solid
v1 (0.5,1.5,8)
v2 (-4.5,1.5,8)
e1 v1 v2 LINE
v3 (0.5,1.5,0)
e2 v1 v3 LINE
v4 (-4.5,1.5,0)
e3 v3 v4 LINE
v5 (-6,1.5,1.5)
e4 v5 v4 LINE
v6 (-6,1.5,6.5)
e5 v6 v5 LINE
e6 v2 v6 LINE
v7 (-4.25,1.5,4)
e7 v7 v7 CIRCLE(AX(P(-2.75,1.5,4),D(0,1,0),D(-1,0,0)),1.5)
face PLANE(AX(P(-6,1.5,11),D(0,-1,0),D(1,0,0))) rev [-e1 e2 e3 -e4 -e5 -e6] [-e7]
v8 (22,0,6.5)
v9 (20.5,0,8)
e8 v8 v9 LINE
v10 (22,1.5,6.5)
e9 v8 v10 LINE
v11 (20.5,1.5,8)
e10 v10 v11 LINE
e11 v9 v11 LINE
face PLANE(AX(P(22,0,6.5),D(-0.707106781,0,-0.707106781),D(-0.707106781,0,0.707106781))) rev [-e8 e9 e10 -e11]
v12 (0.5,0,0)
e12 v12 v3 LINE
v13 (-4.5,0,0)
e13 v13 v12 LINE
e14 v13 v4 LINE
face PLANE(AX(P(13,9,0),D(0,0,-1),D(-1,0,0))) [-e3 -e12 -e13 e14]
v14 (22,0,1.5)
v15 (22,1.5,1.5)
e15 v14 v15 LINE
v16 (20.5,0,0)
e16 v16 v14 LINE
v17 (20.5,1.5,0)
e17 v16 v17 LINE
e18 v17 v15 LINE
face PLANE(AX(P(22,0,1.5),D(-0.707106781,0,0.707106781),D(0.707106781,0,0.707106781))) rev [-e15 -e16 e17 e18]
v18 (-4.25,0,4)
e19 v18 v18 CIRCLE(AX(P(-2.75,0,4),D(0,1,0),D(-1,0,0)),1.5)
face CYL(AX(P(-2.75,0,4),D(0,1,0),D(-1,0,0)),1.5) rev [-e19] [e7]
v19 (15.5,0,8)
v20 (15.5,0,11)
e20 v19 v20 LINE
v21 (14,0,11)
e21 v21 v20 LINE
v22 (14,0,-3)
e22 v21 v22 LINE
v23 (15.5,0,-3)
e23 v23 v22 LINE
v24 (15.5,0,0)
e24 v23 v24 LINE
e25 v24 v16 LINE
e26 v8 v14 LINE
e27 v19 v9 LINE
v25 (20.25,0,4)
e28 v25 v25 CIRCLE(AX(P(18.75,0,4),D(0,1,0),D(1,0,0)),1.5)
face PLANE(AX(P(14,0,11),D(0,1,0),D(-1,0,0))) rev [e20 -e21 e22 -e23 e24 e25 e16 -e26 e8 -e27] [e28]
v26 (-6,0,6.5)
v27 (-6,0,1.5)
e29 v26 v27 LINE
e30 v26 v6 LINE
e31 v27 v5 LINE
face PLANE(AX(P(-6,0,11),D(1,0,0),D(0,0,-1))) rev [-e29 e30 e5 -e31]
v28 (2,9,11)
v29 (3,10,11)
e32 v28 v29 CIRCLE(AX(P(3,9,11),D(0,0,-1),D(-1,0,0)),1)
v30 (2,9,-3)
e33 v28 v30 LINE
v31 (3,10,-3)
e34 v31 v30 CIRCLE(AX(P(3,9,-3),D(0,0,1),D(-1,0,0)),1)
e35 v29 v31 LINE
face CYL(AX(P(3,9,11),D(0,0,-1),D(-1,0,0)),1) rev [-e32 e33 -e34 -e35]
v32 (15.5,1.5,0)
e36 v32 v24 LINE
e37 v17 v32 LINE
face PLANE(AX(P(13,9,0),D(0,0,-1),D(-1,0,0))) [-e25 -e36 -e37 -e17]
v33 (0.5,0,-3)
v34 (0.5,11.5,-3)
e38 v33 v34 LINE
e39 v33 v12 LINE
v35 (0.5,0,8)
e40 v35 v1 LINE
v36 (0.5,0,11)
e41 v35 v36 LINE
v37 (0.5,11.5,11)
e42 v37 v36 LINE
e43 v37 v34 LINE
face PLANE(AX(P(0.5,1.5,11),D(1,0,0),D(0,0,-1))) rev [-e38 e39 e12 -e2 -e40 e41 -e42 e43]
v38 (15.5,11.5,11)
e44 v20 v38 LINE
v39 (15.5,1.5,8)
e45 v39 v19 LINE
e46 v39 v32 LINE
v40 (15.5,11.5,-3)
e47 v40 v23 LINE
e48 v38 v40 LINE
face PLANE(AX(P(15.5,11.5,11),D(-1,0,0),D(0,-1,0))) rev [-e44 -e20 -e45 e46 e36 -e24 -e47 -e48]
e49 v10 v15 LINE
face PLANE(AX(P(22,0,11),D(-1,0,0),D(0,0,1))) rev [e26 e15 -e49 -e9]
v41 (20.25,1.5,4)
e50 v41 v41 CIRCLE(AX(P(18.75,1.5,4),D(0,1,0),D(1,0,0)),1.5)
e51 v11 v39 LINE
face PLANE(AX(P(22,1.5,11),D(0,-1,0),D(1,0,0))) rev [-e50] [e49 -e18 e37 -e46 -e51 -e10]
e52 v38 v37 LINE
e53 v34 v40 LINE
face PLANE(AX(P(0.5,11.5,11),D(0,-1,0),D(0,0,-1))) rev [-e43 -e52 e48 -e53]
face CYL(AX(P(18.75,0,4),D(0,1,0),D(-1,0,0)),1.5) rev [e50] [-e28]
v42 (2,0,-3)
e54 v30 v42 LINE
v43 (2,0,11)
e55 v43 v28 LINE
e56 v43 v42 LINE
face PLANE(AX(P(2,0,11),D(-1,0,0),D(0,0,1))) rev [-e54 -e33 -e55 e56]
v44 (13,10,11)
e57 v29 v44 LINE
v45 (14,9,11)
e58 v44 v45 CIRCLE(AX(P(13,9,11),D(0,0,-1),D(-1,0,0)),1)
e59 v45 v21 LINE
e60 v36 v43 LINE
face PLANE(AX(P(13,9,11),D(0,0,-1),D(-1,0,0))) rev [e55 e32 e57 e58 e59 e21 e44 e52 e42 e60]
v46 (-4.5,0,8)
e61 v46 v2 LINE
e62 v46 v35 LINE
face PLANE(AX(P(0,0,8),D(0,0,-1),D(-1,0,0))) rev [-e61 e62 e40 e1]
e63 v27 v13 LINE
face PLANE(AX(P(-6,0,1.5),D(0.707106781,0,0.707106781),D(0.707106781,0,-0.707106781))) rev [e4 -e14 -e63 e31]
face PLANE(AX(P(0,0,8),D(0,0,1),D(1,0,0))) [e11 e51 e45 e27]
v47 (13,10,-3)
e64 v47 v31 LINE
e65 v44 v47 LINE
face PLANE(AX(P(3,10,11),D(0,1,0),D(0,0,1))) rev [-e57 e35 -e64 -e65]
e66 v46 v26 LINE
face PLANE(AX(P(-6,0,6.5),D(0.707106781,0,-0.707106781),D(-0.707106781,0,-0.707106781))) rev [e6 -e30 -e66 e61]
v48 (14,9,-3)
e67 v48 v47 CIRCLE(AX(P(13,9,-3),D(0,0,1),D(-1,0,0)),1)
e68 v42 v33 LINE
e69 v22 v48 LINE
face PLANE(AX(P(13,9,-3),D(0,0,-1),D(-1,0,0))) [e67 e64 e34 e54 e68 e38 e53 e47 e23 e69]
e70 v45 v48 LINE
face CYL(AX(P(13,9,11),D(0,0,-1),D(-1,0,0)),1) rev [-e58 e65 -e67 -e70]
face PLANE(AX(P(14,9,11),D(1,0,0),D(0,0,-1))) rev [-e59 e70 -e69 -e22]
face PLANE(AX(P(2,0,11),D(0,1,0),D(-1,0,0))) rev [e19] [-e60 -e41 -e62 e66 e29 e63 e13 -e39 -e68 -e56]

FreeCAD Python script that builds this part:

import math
import FreeCAD as App
import Part
import Sketcher
from FreeCAD import Vector
Q = App.Units.Quantity

doc = App.newDocument("Part")
body = doc.addObject("PartDesign::Body", "Body")

sketch1 = body.newObject("Sketcher::SketchObject", "Sketch")
sketch1.AttachmentSupport = (doc.getObject("XY_Plane"), [""])
sketch1.MapMode = "FlatFace"
sketch1.addGeometry(Part.LineSegment(Vector(0.5, 11.5, 0), Vector(0.5, 1.5, 0)), False)
sketch1.addGeometry(Part.LineSegment(Vector(0.5, 1.5, 0), Vector(-6, 1.5, 0)), False)
sketch1.addGeometry(Part.LineSegment(Vector(-6, 1.5, 0), Vector(-6, 0, 0)), False)
sketch1.addGeometry(Part.LineSegment(Vector(-6, 0, 0), Vector(2, 0, 0)), False)
sketch1.addGeometry(Part.LineSegment(Vector(2, 0, 0), Vector(2, 9, 0)), False)
sketch1.addGeometry(Part.ArcOfCircle(Part.Circle(Vector(3, 9, 0), Vector(0, 0, 1), 1), math.radians(90), math.radians(180)), False)
sketch1.addGeometry(Part.LineSegment(Vector(3, 10, 0), Vector(13, 10, 0)), False)
sketch1.addGeometry(Part.ArcOfCircle(Part.Circle(Vector(13, 9, 0), Vector(0, 0, 1), 1), math.radians(0), math.radians(90)), False)
sketch1.addGeometry(Part.LineSegment(Vector(14, 9, 0), Vector(14, 0, 0)), False)
sketch1.addGeometry(Part.LineSegment(Vector(14, 0, 0), Vector(22, 0, 0)), False)
sketch1.addGeometry(Part.LineSegment(Vector(22, 0, 0), Vector(22, 1.5, 0)), False)
sketch1.addGeometry(Part.LineSegment(Vector(22, 1.5, 0), Vector(15.5, 1.5, 0)), False)
sketch1.addGeometry(Part.LineSegment(Vector(15.5, 1.5, 0), Vector(15.5, 11.5, 0)), False)
sketch1.addGeometry(Part.LineSegment(Vector(15.5, 11.5, 0), Vector(0.5, 11.5, 0)), False)
sketch1.addConstraint(Sketcher.Constraint("Coincident", 0, 2, 1, 1))
sketch1.addConstraint(Sketcher.Constraint("Coincident", 1, 2, 2, 1))
sketch1.addConstraint(Sketcher.Constraint("Coincident", 2, 2, 3, 1))
sketch1.addConstraint(Sketcher.Constraint("Coincident", 3, 2, 4, 1))
sketch1.addConstraint(Sketcher.Constraint("Tangent", 4, 2, 5, 2))
sketch1.addConstraint(Sketcher.Constraint("Tangent", 5, 1, 6, 1))
sketch1.addConstraint(Sketcher.Constraint("Tangent", 6, 2, 7, 2))
sketch1.addConstraint(Sketcher.Constraint("Tangent", 7, 1, 8, 1))
sketch1.addConstraint(Sketcher.Constraint("Coincident", 8, 2, 9, 1))
sketch1.addConstraint(Sketcher.Constraint("Coincident", 9, 2, 10, 1))
sketch1.addConstraint(Sketcher.Constraint("Coincident", 10, 2, 11, 1))
sketch1.addConstraint(Sketcher.Constraint("Coincident", 11, 2, 12, 1))
sketch1.addConstraint(Sketcher.Constraint("Coincident", 12, 2, 13, 1))
sketch1.addConstraint(Sketcher.Constraint("Coincident", 13, 2, 0, 1))
sketch1.addConstraint(Sketcher.Constraint("Vertical", 0))
sketch1.addConstraint(Sketcher.Constraint("Horizontal", 1))
sketch1.addConstraint(Sketcher.Constraint("Vertical", 2))
sketch1.addConstraint(Sketcher.Constraint("Horizontal", 3))
sketch1.addConstraint(Sketcher.Constraint("Vertical", 4))
sketch1.addConstraint(Sketcher.Constraint("Horizontal", 6))
sketch1.addConstraint(Sketcher.Constraint("Vertical", 8))
sketch1.addConstraint(Sketcher.Constraint("Horizontal", 9))
sketch1.addConstraint(Sketcher.Constraint("Vertical", 10))
sketch1.addConstraint(Sketcher.Constraint("Horizontal", 11))
sketch1.addConstraint(Sketcher.Constraint("Vertical", 12))
sketch1.addConstraint(Sketcher.Constraint("Horizontal", 13))
sketch1.addConstraint(Sketcher.Constraint("Equal", 5, 7))
sketch1.addConstraint(Sketcher.Constraint("PointOnObject", 2, 2, -1))
sketch1.addConstraint(Sketcher.Constraint("PointOnObject", 8, 2, -1))
sketch1.addConstraint(Sketcher.Constraint("Horizontal", 1, 2, 10, 2))
sketch1.addConstraint(Sketcher.Constraint("Equal", 3, 9))
sketch1.addConstraint(Sketcher.Constraint("Equal", 1, 11))
sketch1.addConstraint(Sketcher.Constraint("Equal", 6, 0))
sketch1.addConstraint(Sketcher.Constraint("Radius", 5, Q("1 mm")))
sketch1.addConstraint(Sketcher.Constraint("DistanceX", 3, 1, 3, 2, Q("8 mm")))
sketch1.addConstraint(Sketcher.Constraint("DistanceX", 6, 1, 6, 2, Q("10 mm")))
sketch1.addConstraint(Sketcher.Constraint("DistanceX", 13, 2, 13, 1, Q("15 mm")))
sketch1.addConstraint(Sketcher.Constraint("DistanceY", 4, 1, 4, 2, Q("9 mm")))
sketch1.addConstraint(Sketcher.Constraint("DistanceY", 2, 2, 2, 1, Q("1.5 mm")))
sketch1.addConstraint(Sketcher.Constraint("DistanceX", -1, 1, 5, 3, Q("3 mm")))
pad1 = body.newObject("PartDesign::Pad", "Pad")
pad1.Profile = sketch1
pad1.Length = 11

sketch2 = body.newObject("Sketcher::SketchObject", "Sketch001")
sketch2.AttachmentSupport = (doc.getObject("XY_Plane"), [""])
sketch2.MapMode = "FlatFace"
sketch2.AttachmentOffset = App.Placement(Vector(0, 0, 11), App.Rotation())
sketch2.addGeometry(Part.LineSegment(Vector(-6, 1.5, 0), Vector(-6, 0, 0)), False)
sketch2.addGeometry(Part.LineSegment(Vector(-6, 0, 0), Vector(0.5, 0, 0)), False)
sketch2.addGeometry(Part.LineSegment(Vector(0.5, 0, 0), Vector(0.5, 1.5, 0)), False)
sketch2.addGeometry(Part.LineSegment(Vector(0.5, 1.5, 0), Vector(-6, 1.5, 0)), False)
sketch2.addGeometry(Part.LineSegment(Vector(15.5, 1.5, 0), Vector(15.5, 0, 0)), False)
sketch2.addGeometry(Part.LineSegment(Vector(15.5, 0, 0), Vector(22, 0, 0)), False)
sketch2.addGeometry(Part.LineSegment(Vector(22, 0, 0), Vector(22, 1.5, 0)), False)
sketch2.addGeometry(Part.LineSegment(Vector(22, 1.5, 0), Vector(15.5, 1.5, 0)), False)
sketch2.addConstraint(Sketcher.Constraint("Coincident", 0, 2, 1, 1))
sketch2.addConstraint(Sketcher.Constraint("Coincident", 1, 2, 2, 1))
sketch2.addConstraint(Sketcher.Constraint("Coincident", 2, 2, 3, 1))
sketch2.addConstraint(Sketcher.Constraint("Coincident", 3, 2, 0, 1))
sketch2.addConstraint(Sketcher.Constraint("Coincident", 4, 2, 5, 1))
sketch2.addConstraint(Sketcher.Constraint("Coincident", 5, 2, 6, 1))
sketch2.addConstraint(Sketcher.Constraint("Coincident", 6, 2, 7, 1))
sketch2.addConstraint(Sketcher.Constraint("Coincident", 7, 2, 4, 1))
sketch2.addConstraint(Sketcher.Constraint("Vertical", 0))
sketch2.addConstraint(Sketcher.Constraint("Horizontal", 1))
sketch2.addConstraint(Sketcher.Constraint("Vertical", 2))
sketch2.addConstraint(Sketcher.Constraint("Horizontal", 3))
sketch2.addConstraint(Sketcher.Constraint("Vertical", 4))
sketch2.addConstraint(Sketcher.Constraint("Horizontal", 5))
sketch2.addConstraint(Sketcher.Constraint("Vertical", 6))
sketch2.addConstraint(Sketcher.Constraint("Horizontal", 7))
sketch2.addConstraint(Sketcher.Constraint("PointOnObject", 0, 2, -1))
sketch2.addConstraint(Sketcher.Constraint("PointOnObject", 4, 2, -1))
sketch2.addConstraint(Sketcher.Constraint("Horizontal", 3, 2, 6, 2))
sketch2.addConstraint(Sketcher.Constraint("Equal", 3, 5))
sketch2.addConstraint(Sketcher.Constraint("DistanceX", 1, 1, 1, 2, Q("6.5 mm")))
sketch2.addConstraint(Sketcher.Constraint("DistanceY", 0, 2, 0, 1, Q("1.5 mm")))
sketch2.addConstraint(Sketcher.Constraint("DistanceX", 0, 2, -1, 1, Q("6 mm")))
sketch2.addConstraint(Sketcher.Constraint("DistanceX", -1, 1, 5, 2, Q("22 mm")))
pocket1 = body.newObject("PartDesign::Pocket", "Pocket")
pocket1.Profile = sketch2
pocket1.Length = 3

sketch3 = body.newObject("Sketcher::SketchObject", "Sketch002")
sketch3.AttachmentSupport = (doc.getObject("XZ_Plane"), [""])
sketch3.MapMode = "FlatFace"
sketch3.AttachmentOffset = App.Placement(Vector(0, 0, -1.5), App.Rotation())
sketch3.addGeometry(Part.Circle(Vector(-2.8, 4, 0), Vector(0, 0, 1), 1.5), False)
sketch3.addGeometry(Part.Circle(Vector(18.8, 4, 0), Vector(0, 0, 1), 1.5), False)
sketch3.addGeometry(Part.LineSegment(Vector(-6, 1.5, 0), Vector(-4.5, 0, 0)), False)
sketch3.addGeometry(Part.LineSegment(Vector(-4.5, 0, 0), Vector(-6, 0, 0)), False)
sketch3.addGeometry(Part.LineSegment(Vector(-6, 0, 0), Vector(-6, 1.5, 0)), False)
sketch3.addGeometry(Part.LineSegment(Vector(22, 0, 0), Vector(20.5, 0, 0)), False)
sketch3.addGeometry(Part.LineSegment(Vector(20.5, 0, 0), Vector(22, 1.5, 0)), False)
sketch3.addGeometry(Part.LineSegment(Vector(22, 1.5, 0), Vector(22, 0, 0)), False)
sketch3.addGeometry(Part.LineSegment(Vector(22, 6.5, 0), Vector(20.5, 8, 0)), False)
sketch3.addGeometry(Part.LineSegment(Vector(20.5, 8, 0), Vector(22, 8, 0)), False)
sketch3.addGeometry(Part.LineSegment(Vector(22, 8, 0), Vector(22, 6.5, 0)), False)
sketch3.addGeometry(Part.LineSegment(Vector(-6, 8, 0), Vector(-4.5, 8, 0)), False)
sketch3.addGeometry(Part.LineSegment(Vector(-4.5, 8, 0), Vector(-6, 6.5, 0)), False)
sketch3.addGeometry(Part.LineSegment(Vector(-6, 6.5, 0), Vector(-6, 8, 0)), False)
sketch3.addConstraint(Sketcher.Constraint("Coincident", 2, 2, 3, 1))
sketch3.addConstraint(Sketcher.Constraint("Coincident", 3, 2, 4, 1))
sketch3.addConstraint(Sketcher.Constraint("Coincident", 4, 2, 2, 1))
sketch3.addConstraint(Sketcher.Constraint("Coincident", 5, 2, 6, 1))
sketch3.addConstraint(Sketcher.Constraint("Coincident", 6, 2, 7, 1))
sketch3.addConstraint(Sketcher.Constraint("Coincident", 7, 2, 5, 1))
sketch3.addConstraint(Sketcher.Constraint("Coincident", 8, 2, 9, 1))
sketch3.addConstraint(Sketcher.Constraint("Coincident", 9, 2, 10, 1))
sketch3.addConstraint(Sketcher.Constraint("Coincident", 10, 2, 8, 1))
sketch3.addConstraint(Sketcher.Constraint("Coincident", 11, 2, 12, 1))
sketch3.addConstraint(Sketcher.Constraint("Coincident", 12, 2, 13, 1))
sketch3.addConstraint(Sketcher.Constraint("Coincident", 13, 2, 11, 1))
sketch3.addConstraint(Sketcher.Constraint("Horizontal", 3))
sketch3.addConstraint(Sketcher.Constraint("Vertical", 4))
sketch3.addConstraint(Sketcher.Constraint("Horizontal", 5))
sketch3.addConstraint(Sketcher.Constraint("Vertical", 7))
sketch3.addConstraint(Sketcher.Constraint("Horizontal", 9))
sketch3.addConstraint(Sketcher.Constraint("Vertical", 10))
sketch3.addConstraint(Sketcher.Constraint("Horizontal", 11))
sketch3.addConstraint(Sketcher.Constraint("Vertical", 13))
sketch3.addConstraint(Sketcher.Constraint("Equal", 0, 1))
sketch3.addConstraint(Sketcher.Constraint("PointOnObject", 2, 2, -1))
sketch3.addConstraint(Sketcher.Constraint("PointOnObject", 5, 2, -1))
sketch3.addConstraint(Sketcher.Constraint("Perpendicular", 2, 6))
sketch3.addConstraint(Sketcher.Constraint("Perpendicular", 6, 8))
sketch3.addConstraint(Sketcher.Constraint("Perpendicular", 8, 12))
sketch3.addConstraint(Sketcher.Constraint("Horizontal", 0, 3, 1, 3))
sketch3.addConstraint(Sketcher.Constraint("Horizontal", 4, 2, 6, 2))
sketch3.addConstraint(Sketcher.Constraint("Horizontal", 9, 2, 11, 2))
sketch3.addConstraint(Sketcher.Constraint("Horizontal", 10, 2, 12, 2))
sketch3.addConstraint(Sketcher.Constraint("Vertical", 5, 2, 8, 2))
sketch3.addConstraint(Sketcher.Constraint("Vertical", 7, 2, 9, 2))
sketch3.addConstraint(Sketcher.Constraint("Vertical", 2, 2, 11, 2))
sketch3.addConstraint(Sketcher.Constraint("Vertical", 4, 2, 12, 2))
sketch3.addConstraint(Sketcher.Constraint("Diameter", 0, Q("3 mm")))
sketch3.addConstraint(Sketcher.Constraint("DistanceX", 3, 2, 3, 1, Q("1.5 mm")))
sketch3.addConstraint(Sketcher.Constraint("DistanceY", -1, 1, 0, 3, Q("4 mm")))
sketch3.addConstraint(Sketcher.Constraint("DistanceX", 3, 2, -1, 1, Q("6 mm")))
sketch3.addConstraint(Sketcher.Constraint("DistanceX", -1, 1, 6, 2, Q("22 mm")))
sketch3.addConstraint(Sketcher.Constraint("DistanceY", -1, 1, 8, 2, Q("8 mm")))
sketch3.addConstraint(Sketcher.Constraint("DistanceX", 0, 3, 1, 3, Q("21.5 mm")))
sketch3.addConstraint(Sketcher.Constraint("DistanceX", 0, 3, -1, 1, Q("2.75 mm")))
pocket2 = body.newObject("PartDesign::Pocket", "Pocket001")
pocket2.Profile = sketch3
pocket2.Type = "ThroughAll"
pocket2.Reversed = True

sketch4 = body.newObject("Sketcher::SketchObject", "Sketch003")
sketch4.AttachmentSupport = (doc.getObject("XY_Plane"), [""])
sketch4.MapMode = "FlatFace"
sketch4.AttachmentOffset = App.Placement(Vector(0, 0, -3), App.Rotation())
sketch4.addGeometry(Part.LineSegment(Vector(2, 0, 0), Vector(0.5, 0, 0)), False)
sketch4.addGeometry(Part.LineSegment(Vector(0.5, 0, 0), Vector(0.5, 11.5, 0)), False)
sketch4.addGeometry(Part.LineSegment(Vector(0.5, 11.5, 0), Vector(15.5, 11.5, 0)), False)
sketch4.addGeometry(Part.LineSegment(Vector(15.5, 11.5, 0), Vector(15.5, 0, 0)), False)
sketch4.addGeometry(Part.LineSegment(Vector(15.5, 0, 0), Vector(14, 0, 0)), False)
sketch4.addGeometry(Part.LineSegment(Vector(14, 0, 0), Vector(14, 9, 0)), False)
sketch4.addGeometry(Part.ArcOfCircle(Part.Circle(Vector(13, 9, 0), Vector(0, 0, 1), 1), math.radians(0), math.radians(90)), False)
sketch4.addGeometry(Part.LineSegment(Vector(13, 10, 0), Vector(3, 10, 0)), False)
sketch4.addGeometry(Part.ArcOfCircle(Part.Circle(Vector(3, 9, 0), Vector(0, 0, 1), 1), math.radians(90), math.radians(180)), False)
sketch4.addGeometry(Part.LineSegment(Vector(2, 9, 0), Vector(2, 0, 0)), False)
sketch4.addConstraint(Sketcher.Constraint("Coincident", 0, 2, 1, 1))
sketch4.addConstraint(Sketcher.Constraint("Coincident", 1, 2, 2, 1))
sketch4.addConstraint(Sketcher.Constraint("Coincident", 2, 2, 3, 1))
sketch4.addConstraint(Sketcher.Constraint("Coincident", 3, 2, 4, 1))
sketch4.addConstraint(Sketcher.Constraint("Coincident", 4, 2, 5, 1))
sketch4.addConstraint(Sketcher.Constraint("Tangent", 5, 2, 6, 1))
sketch4.addConstraint(Sketcher.Constraint("Tangent", 6, 2, 7, 1))
sketch4.addConstraint(Sketcher.Constraint("Tangent", 7, 2, 8, 1))
sketch4.addConstraint(Sketcher.Constraint("Tangent", 8, 2, 9, 1))
sketch4.addConstraint(Sketcher.Constraint("Coincident", 9, 2, 0, 1))
sketch4.addConstraint(Sketcher.Constraint("Horizontal", 0))
sketch4.addConstraint(Sketcher.Constraint("Vertical", 1))
sketch4.addConstraint(Sketcher.Constraint("Horizontal", 2))
sketch4.addConstraint(Sketcher.Constraint("Vertical", 3))
sketch4.addConstraint(Sketcher.Constraint("Horizontal", 4))
sketch4.addConstraint(Sketcher.Constraint("Vertical", 5))
sketch4.addConstraint(Sketcher.Constraint("Horizontal", 7))
sketch4.addConstraint(Sketcher.Constraint("Vertical", 9))
sketch4.addConstraint(Sketcher.Constraint("Equal", 6, 8))
sketch4.addConstraint(Sketcher.Constraint("PointOnObject", 0, 2, -1))
sketch4.addConstraint(Sketcher.Constraint("PointOnObject", 3, 2, -1))
sketch4.addConstraint(Sketcher.Constraint("Equal", 0, 4))
sketch4.addConstraint(Sketcher.Constraint("Radius", 6, Q("1 mm")))
sketch4.addConstraint(Sketcher.Constraint("DistanceX", 2, 1, 2, 2, Q("15 mm")))
sketch4.addConstraint(Sketcher.Constraint("DistanceX", 7, 2, 7, 1, Q("10 mm")))
sketch4.addConstraint(Sketcher.Constraint("DistanceY", 5, 1, 5, 2, Q("9 mm")))
sketch4.addConstraint(Sketcher.Constraint("DistanceY", 1, 1, 1, 2, Q("11.5 mm")))
sketch4.addConstraint(Sketcher.Constraint("DistanceX", -1, 1, 6, 3, Q("13 mm")))
pad2 = body.newObject("PartDesign::Pad", "Pad001")
pad2.Profile = sketch4
pad2.Length = 3

doc.recompute()
